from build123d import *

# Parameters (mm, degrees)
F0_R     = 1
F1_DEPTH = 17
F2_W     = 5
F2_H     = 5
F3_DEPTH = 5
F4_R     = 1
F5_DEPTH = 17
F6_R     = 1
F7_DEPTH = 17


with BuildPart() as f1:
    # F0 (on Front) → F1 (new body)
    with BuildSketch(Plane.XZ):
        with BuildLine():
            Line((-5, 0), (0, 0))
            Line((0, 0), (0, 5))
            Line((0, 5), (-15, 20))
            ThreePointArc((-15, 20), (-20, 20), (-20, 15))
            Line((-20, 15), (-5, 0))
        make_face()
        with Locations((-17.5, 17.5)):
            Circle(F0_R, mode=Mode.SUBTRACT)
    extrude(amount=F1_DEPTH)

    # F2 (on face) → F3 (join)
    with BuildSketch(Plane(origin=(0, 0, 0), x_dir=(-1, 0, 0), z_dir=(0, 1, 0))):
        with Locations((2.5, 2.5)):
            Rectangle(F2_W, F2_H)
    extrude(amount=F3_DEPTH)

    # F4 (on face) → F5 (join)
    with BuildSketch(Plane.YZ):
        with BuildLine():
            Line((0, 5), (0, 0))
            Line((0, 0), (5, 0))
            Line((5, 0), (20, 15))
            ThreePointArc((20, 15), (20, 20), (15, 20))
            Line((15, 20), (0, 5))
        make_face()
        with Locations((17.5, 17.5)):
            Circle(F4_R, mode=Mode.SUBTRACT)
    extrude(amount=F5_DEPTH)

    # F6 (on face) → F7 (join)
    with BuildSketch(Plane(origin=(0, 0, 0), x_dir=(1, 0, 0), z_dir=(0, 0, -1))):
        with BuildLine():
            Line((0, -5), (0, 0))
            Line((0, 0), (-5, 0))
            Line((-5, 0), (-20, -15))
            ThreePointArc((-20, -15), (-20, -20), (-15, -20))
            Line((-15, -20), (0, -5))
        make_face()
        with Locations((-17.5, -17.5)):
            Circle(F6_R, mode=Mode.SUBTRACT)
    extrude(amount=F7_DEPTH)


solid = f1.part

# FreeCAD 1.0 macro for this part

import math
import FreeCAD as App
import Part
import Sketcher

V = App.Vector

doc = App.newDocument("Part")
body = doc.addObject("PartDesign::Body", "Body")

sketch1 = body.newObject("Sketcher::SketchObject", "Sketch")
sketch1.AttachmentSupport = (doc.getObject("XZ_Plane"), [""])
sketch1.MapMode = "FlatFace"
sketch1.addGeometry([
    Part.LineSegment(V(-5, 0, 0), V(0, 0, 0)),
    Part.LineSegment(V(0, 0, 0), V(0, 5, 0)),
    Part.LineSegment(V(0, 5, 0), V(-15, 20, 0)),
    Part.ArcOfCircle(Part.Circle(V(-17.5, 17.5, 0), V(0, 0, 1), 3.535534), math.radians(45), math.radians(225)),
    Part.LineSegment(V(-20, 15, 0), V(-5, 0, 0)),
    Part.Circle(V(-17.5, 17.5, 0), V(0, 0, 1), 1),
], False)
sketch1.addConstraint([
    Sketcher.Constraint("Coincident", 0, 2, 1, 1),
    Sketcher.Constraint("Coincident", 1, 2, 2, 1),
    Sketcher.Constraint("Tangent", 2, 2, 3, 1),
    Sketcher.Constraint("Tangent", 3, 2, 4, 1),
    Sketcher.Constraint("Coincident", 4, 2, 0, 1),
    Sketcher.Constraint("Horizontal", 0),
    Sketcher.Constraint("Vertical", 1),
    Sketcher.Constraint("Coincident", 0, 2, -1, 1),
    Sketcher.Constraint("Coincident", 5, 3, 3, 3),
    Sketcher.Constraint("Parallel", 2, 4),
    Sketcher.Constraint("Equal", 0, 1),
    Sketcher.Constraint("Equal", 2, 4),
    Sketcher.Constraint("Diameter", 5, 2.0),
    Sketcher.Constraint("DistanceX", 0, 1, 0, 2, 5.0),
    Sketcher.Constraint("DistanceX", 2, 2, -1, 1, 15.0),
])
pad1 = body.newObject("PartDesign::Pad", "Pad")
pad1.Profile = sketch1
pad1.Length = 17

sketch2 = body.newObject("Sketcher::SketchObject", "Sketch001")
sketch2.AttachmentSupport = (doc.getObject("XZ_Plane"), [""])
sketch2.MapMode = "FlatFace"
sketch2.addGeometry([
    Part.LineSegment(V(0, 5, 0), V(0, 0, 0)),
    Part.LineSegment(V(0, 0, 0), V(-5, 0, 0)),
    Part.LineSegment(V(-5, 0, 0), V(-5, 5, 0)),
    Part.LineSegment(V(-5, 5, 0), V(0, 5, 0)),
], False)
sketch2.addConstraint([
    Sketcher.Constraint("Coincident", 0, 2, 1, 1),
    Sketcher.Constraint("Coincident", 1, 2, 2, 1),
    Sketcher.Constraint("Coincident", 2, 2, 3, 1),
    Sketcher.Constraint("Coincident", 3, 2, 0, 1),
    Sketcher.Constraint("Vertical", 0),
    Sketcher.Constraint("Horizontal", 1),
    Sketcher.Constraint("Vertical", 2),
    Sketcher.Constraint("Horizontal", 3),
    Sketcher.Constraint("Coincident", 0, 2, -1, 1),
    Sketcher.Constraint("Equal", 3, 0),
    Sketcher.Constraint("DistanceX", 1, 2, 1, 1, 5.0),
])
pad2 = body.newObject("PartDesign::Pad", "Pad001")
pad2.Profile = sketch2
pad2.Length = 5
pad2.Reversed = True

sketch3 = body.newObject("Sketcher::SketchObject", "Sketch002")
sketch3.AttachmentSupport = (doc.getObject("YZ_Plane"), [""])
sketch3.MapMode = "FlatFace"
sketch3.addGeometry([
    Part.LineSegment(V(0, 5, 0), V(0, 0, 0)),
    Part.LineSegment(V(0, 0, 0), V(5, 0, 0)),
    Part.LineSegment(V(5, 0, 0), V(20, 15, 0)),
    Part.ArcOfCircle(Part.Circle(V(17.5, 17.5, 0), V(0, 0, 1), 3.535534), math.radians(-45), math.radians(135)),
    Part.LineSegment(V(15, 20, 0), V(0, 5, 0)),
    Part.Circle(V(17.5, 17.5, 0), V(0, 0, 1), 1),
], False)
sketch3.addConstraint([
    Sketcher.Constraint("Coincident", 0, 2, 1, 1),
    Sketcher.Constraint("Coincident", 1, 2, 2, 1),
    Sketcher.Constraint("Tangent", 2, 2, 3, 1),
    Sketcher.Constraint("Tangent", 3, 2, 4, 1),
    Sketcher.Constraint("Coincident", 4, 2, 0, 1),
    Sketcher.Constraint("Vertical", 0),
    Sketcher.Constraint("Horizontal", 1),
    Sketcher.Constraint("Coincident", 0, 2, -1, 1),
    Sketcher.Constraint("Coincident", 5, 3, 3, 3),
    Sketcher.Constraint("Parallel", 2, 4),
    Sketcher.Constraint("Equal", 1, 0),
    Sketcher.Constraint("Equal", 2, 4),
    Sketcher.Constraint("Diameter", 5, 2.0),
    Sketcher.Constraint("DistanceX", 1, 1, 1, 2, 5.0),
    Sketcher.Constraint("DistanceX", -1, 1, 2, 2, 20.0),
])
pad3 = body.newObject("PartDesign::Pad", "Pad002")
pad3.Profile = sketch3
pad3.Length = 17

sketch4 = body.newObject("Sketcher::SketchObject", "Sketch003")
sketch4.AttachmentSupport = (doc.getObject("XY_Plane"), [""])
sketch4.MapMode = "FlatFace"
sketch4.addGeometry([
    Part.LineSegment(V(0, 5, 0), V(0, 0, 0)),
    Part.LineSegment(V(0, 0, 0), V(-5, 0, 0)),
    Part.LineSegment(V(-5, 0, 0), V(-20, 15, 0)),
    Part.ArcOfCircle(Part.Circle(V(-17.5, 17.5, 0), V(0, 0, 1), 3.535534), math.radians(45), math.radians(225)),
    Part.LineSegment(V(-15, 20, 0), V(0, 5, 0)),
    Part.Circle(V(-17.5, 17.5, 0), V(0, 0, 1), 1),
], False)
sketch4.addConstraint([
    Sketcher.Constraint("Coincident", 0, 2, 1, 1),
    Sketcher.Constraint("Coincident", 1, 2, 2, 1),
    Sketcher.Constraint("Tangent", 2, 2, 3, 2),
    Sketcher.Constraint("Tangent", 3, 1, 4, 1),
    Sketcher.Constraint("Coincident", 4, 2, 0, 1),
    Sketcher.Constraint("Vertical", 0),
    Sketcher.Constraint("Horizontal", 1),
    Sketcher.Constraint("Coincident", 0, 2, -1, 1),
    Sketcher.Constraint("Coincident", 5, 3, 3, 3),
    Sketcher.Constraint("Parallel", 2, 4),
    Sketcher.Constraint("Equal", 1, 0),
    Sketcher.Constraint("Equal", 2, 4),
    Sketcher.Constraint("Diameter", 5, 2.0),
    Sketcher.Constraint("DistanceX", 1, 2, 1, 1, 5.0),
    Sketcher.Constraint("DistanceX", 2, 2, -1, 1, 20.0),
])
pad4 = body.newObject("PartDesign::Pad", "Pad003")
pad4.Profile = sketch4
pad4.Length = 17
pad4.Reversed = True

doc.recompute()
